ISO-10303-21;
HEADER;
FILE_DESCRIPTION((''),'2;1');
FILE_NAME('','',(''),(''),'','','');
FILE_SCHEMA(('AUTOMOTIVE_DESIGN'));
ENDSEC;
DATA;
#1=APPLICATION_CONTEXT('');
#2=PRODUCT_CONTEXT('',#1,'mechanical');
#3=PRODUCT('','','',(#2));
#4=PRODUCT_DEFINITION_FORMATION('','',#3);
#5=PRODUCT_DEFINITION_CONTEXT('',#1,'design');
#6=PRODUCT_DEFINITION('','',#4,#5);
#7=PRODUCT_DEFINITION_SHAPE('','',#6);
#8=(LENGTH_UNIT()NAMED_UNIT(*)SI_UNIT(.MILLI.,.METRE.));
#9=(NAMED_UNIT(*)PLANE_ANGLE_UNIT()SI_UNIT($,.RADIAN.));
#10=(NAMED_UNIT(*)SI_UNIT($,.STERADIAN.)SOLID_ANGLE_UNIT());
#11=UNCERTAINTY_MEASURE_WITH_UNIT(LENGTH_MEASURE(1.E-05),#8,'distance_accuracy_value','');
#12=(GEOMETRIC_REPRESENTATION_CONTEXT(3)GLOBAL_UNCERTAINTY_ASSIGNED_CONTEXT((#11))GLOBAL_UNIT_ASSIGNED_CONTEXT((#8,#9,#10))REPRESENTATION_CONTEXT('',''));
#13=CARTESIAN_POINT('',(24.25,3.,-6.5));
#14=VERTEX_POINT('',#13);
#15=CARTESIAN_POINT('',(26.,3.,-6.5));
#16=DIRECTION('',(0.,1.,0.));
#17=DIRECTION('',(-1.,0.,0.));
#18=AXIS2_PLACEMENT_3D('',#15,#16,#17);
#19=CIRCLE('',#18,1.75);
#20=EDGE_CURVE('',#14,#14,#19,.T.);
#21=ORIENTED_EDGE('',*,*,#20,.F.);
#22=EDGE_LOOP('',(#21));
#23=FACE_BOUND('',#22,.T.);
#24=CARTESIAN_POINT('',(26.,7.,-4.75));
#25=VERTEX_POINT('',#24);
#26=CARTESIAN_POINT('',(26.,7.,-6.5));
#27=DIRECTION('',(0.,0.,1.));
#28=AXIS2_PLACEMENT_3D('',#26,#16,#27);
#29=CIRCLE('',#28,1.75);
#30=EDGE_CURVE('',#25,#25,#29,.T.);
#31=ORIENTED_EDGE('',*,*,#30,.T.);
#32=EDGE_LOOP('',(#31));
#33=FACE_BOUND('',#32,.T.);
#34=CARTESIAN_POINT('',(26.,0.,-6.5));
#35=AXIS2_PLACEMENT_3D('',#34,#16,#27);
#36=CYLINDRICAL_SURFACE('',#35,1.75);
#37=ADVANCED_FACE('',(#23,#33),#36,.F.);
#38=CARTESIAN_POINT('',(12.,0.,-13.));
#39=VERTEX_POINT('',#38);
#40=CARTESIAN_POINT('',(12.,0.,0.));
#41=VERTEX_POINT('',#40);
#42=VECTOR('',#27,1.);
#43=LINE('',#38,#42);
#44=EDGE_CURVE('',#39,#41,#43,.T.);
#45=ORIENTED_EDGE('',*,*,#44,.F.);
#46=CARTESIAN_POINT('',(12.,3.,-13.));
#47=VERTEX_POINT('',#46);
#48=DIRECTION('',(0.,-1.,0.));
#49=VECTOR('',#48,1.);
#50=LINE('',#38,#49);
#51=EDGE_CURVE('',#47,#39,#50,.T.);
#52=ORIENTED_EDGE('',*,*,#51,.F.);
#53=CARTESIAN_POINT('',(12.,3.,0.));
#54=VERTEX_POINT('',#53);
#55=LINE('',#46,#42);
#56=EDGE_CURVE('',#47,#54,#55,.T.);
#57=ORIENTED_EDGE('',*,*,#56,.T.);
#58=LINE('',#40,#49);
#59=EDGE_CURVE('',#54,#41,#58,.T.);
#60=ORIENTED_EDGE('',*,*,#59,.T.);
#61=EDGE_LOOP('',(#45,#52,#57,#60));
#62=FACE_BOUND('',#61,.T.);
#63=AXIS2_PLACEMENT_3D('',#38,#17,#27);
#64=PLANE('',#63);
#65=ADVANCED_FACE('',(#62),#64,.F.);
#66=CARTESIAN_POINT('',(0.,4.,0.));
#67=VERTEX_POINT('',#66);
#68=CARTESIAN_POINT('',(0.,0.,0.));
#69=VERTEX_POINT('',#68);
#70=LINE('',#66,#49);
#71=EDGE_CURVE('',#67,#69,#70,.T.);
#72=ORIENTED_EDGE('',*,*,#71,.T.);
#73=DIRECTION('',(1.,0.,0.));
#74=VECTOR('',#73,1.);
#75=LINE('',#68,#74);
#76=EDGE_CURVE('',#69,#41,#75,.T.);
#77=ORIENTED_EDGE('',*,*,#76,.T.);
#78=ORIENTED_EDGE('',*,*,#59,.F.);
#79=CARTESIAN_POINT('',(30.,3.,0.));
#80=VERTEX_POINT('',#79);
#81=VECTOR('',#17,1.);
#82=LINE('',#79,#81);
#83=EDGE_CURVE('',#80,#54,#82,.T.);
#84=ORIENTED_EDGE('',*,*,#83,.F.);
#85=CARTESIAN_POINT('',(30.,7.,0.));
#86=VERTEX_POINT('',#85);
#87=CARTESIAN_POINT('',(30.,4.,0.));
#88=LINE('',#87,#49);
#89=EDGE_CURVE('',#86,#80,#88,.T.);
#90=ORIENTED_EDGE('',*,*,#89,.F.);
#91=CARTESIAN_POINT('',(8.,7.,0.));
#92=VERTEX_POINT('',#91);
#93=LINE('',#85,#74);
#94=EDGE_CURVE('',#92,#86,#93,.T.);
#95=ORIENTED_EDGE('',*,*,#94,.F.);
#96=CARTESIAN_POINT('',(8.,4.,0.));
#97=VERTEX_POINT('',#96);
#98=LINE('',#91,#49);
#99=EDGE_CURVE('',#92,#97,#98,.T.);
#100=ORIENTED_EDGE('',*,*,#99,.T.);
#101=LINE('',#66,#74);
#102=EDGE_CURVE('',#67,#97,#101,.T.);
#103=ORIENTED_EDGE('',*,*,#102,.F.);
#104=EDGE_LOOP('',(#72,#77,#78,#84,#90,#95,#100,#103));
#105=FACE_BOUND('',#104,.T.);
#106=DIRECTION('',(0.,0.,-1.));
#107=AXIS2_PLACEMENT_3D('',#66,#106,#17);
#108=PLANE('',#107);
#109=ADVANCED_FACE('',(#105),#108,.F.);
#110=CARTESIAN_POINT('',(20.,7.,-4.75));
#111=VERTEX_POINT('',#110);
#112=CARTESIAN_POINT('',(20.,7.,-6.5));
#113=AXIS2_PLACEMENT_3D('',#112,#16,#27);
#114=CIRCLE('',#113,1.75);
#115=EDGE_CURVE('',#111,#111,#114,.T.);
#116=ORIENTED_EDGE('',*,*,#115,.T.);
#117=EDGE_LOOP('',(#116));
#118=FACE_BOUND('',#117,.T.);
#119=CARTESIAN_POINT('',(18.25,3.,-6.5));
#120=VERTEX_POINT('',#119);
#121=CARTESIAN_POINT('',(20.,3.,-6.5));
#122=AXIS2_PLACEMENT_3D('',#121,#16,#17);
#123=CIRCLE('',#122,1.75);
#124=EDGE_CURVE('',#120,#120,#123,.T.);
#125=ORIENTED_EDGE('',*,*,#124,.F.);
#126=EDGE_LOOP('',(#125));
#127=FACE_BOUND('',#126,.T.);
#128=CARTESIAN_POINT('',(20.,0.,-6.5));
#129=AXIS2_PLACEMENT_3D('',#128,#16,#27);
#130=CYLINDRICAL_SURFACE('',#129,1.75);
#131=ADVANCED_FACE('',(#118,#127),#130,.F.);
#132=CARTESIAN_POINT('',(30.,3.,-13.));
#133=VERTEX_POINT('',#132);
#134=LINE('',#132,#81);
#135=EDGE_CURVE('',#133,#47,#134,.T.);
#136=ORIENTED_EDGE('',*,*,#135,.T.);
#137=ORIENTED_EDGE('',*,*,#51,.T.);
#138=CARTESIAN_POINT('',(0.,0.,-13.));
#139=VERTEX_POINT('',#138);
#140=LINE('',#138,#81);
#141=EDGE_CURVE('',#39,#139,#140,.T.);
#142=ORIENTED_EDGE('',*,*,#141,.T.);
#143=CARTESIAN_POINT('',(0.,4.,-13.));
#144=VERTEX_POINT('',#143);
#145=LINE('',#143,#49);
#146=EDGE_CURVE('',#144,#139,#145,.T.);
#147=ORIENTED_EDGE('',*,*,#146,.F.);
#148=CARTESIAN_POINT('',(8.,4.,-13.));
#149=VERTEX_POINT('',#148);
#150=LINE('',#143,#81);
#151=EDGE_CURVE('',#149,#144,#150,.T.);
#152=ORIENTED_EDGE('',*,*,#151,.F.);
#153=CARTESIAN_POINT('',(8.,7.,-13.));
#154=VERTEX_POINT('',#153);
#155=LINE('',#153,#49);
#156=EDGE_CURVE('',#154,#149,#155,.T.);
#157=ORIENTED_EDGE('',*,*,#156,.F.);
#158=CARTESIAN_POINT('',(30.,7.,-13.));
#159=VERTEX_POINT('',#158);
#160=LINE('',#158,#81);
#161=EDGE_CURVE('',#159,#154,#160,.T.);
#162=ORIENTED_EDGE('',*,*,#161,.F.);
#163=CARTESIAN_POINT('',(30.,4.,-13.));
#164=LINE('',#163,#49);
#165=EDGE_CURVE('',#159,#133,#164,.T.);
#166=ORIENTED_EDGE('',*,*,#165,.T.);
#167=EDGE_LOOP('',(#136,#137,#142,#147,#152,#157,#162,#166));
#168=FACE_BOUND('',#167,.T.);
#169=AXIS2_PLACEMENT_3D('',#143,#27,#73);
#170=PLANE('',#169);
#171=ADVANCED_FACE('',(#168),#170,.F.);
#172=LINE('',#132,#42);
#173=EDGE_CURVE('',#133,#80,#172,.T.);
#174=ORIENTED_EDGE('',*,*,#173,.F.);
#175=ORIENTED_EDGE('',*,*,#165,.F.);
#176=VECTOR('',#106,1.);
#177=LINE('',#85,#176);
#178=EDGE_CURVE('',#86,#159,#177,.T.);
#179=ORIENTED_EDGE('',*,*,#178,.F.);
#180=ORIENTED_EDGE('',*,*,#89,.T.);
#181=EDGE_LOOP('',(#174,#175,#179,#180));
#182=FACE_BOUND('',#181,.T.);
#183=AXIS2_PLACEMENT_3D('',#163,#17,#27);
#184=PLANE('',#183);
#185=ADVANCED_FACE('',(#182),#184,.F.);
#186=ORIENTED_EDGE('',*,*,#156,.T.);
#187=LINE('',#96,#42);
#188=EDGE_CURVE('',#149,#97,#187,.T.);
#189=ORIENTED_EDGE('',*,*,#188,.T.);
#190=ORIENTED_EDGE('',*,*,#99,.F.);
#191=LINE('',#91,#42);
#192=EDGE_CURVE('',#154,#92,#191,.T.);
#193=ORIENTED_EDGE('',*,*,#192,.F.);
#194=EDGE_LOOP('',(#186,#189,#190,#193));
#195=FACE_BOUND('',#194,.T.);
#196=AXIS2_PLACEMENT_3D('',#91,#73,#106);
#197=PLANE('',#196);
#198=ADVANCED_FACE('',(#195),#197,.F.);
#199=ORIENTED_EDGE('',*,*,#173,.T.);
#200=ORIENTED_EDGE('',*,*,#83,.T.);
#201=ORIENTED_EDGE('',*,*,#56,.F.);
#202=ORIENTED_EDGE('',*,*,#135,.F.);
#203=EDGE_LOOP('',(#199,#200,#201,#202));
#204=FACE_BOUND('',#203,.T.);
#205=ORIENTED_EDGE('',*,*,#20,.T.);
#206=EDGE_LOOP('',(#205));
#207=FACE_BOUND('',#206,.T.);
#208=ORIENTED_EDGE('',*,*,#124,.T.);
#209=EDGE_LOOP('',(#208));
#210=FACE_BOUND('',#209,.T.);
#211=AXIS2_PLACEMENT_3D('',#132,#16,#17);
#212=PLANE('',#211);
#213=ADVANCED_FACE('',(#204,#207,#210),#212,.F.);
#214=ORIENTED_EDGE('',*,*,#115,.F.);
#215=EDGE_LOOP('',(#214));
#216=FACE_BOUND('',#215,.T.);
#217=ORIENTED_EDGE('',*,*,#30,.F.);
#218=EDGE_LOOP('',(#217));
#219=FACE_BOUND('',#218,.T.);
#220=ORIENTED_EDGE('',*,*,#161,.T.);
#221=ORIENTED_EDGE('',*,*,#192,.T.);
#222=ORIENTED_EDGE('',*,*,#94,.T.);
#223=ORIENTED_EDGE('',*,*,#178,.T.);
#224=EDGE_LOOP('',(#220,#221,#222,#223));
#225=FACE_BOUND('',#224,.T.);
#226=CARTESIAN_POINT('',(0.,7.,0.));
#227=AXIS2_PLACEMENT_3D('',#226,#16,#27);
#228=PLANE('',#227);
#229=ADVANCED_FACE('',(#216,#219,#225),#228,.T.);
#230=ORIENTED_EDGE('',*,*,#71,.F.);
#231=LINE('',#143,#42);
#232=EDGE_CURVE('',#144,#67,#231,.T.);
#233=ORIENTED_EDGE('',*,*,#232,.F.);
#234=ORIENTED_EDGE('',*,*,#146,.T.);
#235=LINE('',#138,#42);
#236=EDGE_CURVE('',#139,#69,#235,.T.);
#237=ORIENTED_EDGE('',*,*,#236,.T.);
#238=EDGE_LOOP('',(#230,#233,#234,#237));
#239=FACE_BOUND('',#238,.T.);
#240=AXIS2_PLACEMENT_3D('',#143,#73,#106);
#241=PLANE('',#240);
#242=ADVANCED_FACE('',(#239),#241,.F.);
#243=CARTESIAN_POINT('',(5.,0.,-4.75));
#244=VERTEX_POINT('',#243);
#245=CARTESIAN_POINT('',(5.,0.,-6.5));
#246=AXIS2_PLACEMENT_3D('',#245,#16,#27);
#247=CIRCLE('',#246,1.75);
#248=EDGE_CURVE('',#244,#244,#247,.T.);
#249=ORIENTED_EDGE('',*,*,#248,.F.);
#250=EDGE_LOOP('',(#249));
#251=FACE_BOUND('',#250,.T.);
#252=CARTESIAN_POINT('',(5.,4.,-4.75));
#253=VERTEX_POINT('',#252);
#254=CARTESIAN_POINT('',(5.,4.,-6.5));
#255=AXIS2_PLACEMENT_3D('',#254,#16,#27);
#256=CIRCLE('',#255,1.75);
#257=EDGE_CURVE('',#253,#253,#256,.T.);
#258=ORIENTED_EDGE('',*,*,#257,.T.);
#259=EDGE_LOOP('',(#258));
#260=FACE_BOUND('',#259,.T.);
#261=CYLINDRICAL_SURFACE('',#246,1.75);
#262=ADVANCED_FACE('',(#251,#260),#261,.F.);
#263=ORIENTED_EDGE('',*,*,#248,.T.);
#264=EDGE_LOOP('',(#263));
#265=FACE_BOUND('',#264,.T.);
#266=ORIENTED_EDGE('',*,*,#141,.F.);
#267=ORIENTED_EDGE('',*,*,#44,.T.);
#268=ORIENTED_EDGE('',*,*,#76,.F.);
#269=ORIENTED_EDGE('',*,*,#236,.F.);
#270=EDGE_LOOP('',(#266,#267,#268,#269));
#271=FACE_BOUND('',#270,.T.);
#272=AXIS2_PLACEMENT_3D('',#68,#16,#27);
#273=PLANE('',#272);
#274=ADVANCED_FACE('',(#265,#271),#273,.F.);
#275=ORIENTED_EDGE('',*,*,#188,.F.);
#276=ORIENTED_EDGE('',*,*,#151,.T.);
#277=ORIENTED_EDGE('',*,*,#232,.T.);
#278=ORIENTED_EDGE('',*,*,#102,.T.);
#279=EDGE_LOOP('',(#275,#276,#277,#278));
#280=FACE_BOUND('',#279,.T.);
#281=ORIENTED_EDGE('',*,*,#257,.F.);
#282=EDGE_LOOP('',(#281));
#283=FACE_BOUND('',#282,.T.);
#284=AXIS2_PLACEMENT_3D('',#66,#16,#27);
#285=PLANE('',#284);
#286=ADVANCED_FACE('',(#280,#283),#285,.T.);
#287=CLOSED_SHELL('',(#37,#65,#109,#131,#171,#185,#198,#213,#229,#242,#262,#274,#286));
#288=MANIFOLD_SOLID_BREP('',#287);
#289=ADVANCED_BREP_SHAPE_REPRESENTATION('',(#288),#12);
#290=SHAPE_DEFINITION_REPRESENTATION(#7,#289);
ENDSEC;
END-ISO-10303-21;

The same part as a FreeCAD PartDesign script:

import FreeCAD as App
import Part
import Sketcher
from FreeCAD import Vector


def add_polygon(sketch, points):
    """Adds a closed chain of lines whose ends are joined by coincident constraints."""
    first, n = sketch.GeometryCount, len(points)
    for a, b in zip(points, points[1:] + points[:1]):
        sketch.addGeometry(Part.LineSegment(App.Vector(*a, 0), App.Vector(*b, 0)), False)
    for i in range(n):
        sketch.addConstraint(Sketcher.Constraint("Coincident", first + i, 2, first + (i + 1) % n, 1))

doc = App.newDocument("Part")
body = doc.addObject("PartDesign::Body", "Body")

# Sketch on XZ plane
sketch1 = body.newObject("Sketcher::SketchObject", "Sketch")
sketch1.AttachmentSupport = (doc.getObject("XZ_Plane"), [""])
sketch1.MapMode = "FlatFace"
add_polygon(sketch1, [(0, -13), (0, 0), (30, 0), (30, -13)])  # lines 0-3
sketch1.addConstraint([
    Sketcher.Constraint("Vertical", 0),
    Sketcher.Constraint("Horizontal", 1),
    Sketcher.Constraint("Vertical", 2),
    Sketcher.Constraint("Horizontal", 3),
    Sketcher.Constraint("Coincident", 0, 2, -1, 1),
    Sketcher.Constraint("DistanceX", 1, 1, 1, 2, 30.0),
    Sketcher.Constraint("DistanceY", 0, 1, 0, 2, 13.0),
])
pad1 = body.newObject("PartDesign::Pad", "Pad")
pad1.Profile = sketch1
pad1.Length = 4
pad1.Reversed = True

# Sketch on XY plane
sketch2 = body.newObject("Sketcher::SketchObject", "Sketch001")
sketch2.AttachmentSupport = (doc.getObject("XY_Plane"), [""])
sketch2.MapMode = "FlatFace"
add_polygon(sketch2, [(12, 3), (12, 0), (30, 0), (30, 3)])  # lines 0-3
sketch2.addConstraint([
    Sketcher.Constraint("Vertical", 0),
    Sketcher.Constraint("Horizontal", 1),
    Sketcher.Constraint("Vertical", 2),
    Sketcher.Constraint("Horizontal", 3),
    Sketcher.Constraint("PointOnObject", 0, 2, -1),
    Sketcher.Constraint("DistanceX", 1, 1, 1, 2, 18.0),
    Sketcher.Constraint("DistanceY", 0, 2, 0, 1, 3.0),
    Sketcher.Constraint("DistanceX", -1, 1, 0, 2, 12.0),
])
pocket1 = body.newObject("PartDesign::Pocket", "Pocket")
pocket1.Profile = sketch2
pocket1.Type = "ThroughAll"

# Sketch on XZ plane
sketch3 = body.newObject("Sketcher::SketchObject", "Sketch002")
sketch3.AttachmentSupport = (doc.getObject("XZ_Plane"), [""])
sketch3.MapMode = "FlatFace"
sketch3.AttachmentOffset = App.Placement(Vector(0, 0, -4), App.Rotation())
add_polygon(sketch3, [(8, -13), (8, 0), (30, 0), (30, -13)])  # lines 0-3
sketch3.addConstraint([
    Sketcher.Constraint("Vertical", 0),
    Sketcher.Constraint("Horizontal", 1),
    Sketcher.Constraint("Vertical", 2),
    Sketcher.Constraint("Horizontal", 3),
    Sketcher.Constraint("PointOnObject", 0, 2, -1),
    Sketcher.Constraint("DistanceX", 1, 1, 1, 2, 22.0),
    Sketcher.Constraint("DistanceY", 0, 1, 0, 2, 13.0),
    Sketcher.Constraint("DistanceX", -1, 1, 0, 2, 8.0),
])
pad2 = body.newObject("PartDesign::Pad", "Pad001")
pad2.Profile = sketch3
pad2.Length = 3
pad2.Reversed = True

# Sketch on XZ plane
sketch4 = body.newObject("Sketcher::SketchObject", "Sketch003")
sketch4.AttachmentSupport = (doc.getObject("XZ_Plane"), [""])
sketch4.MapMode = "FlatFace"
sketch4.AttachmentOffset = App.Placement(Vector(0, 0, -4), App.Rotation())
sketch4.addGeometry(Part.Circle(Vector(5, -6.5, 0), Vector(0, 0, 1), 1.8), False)
sketch4.addConstraint([
    Sketcher.Constraint("Diameter", 0, 3.5),
    Sketcher.Constraint("DistanceX", -1, 1, 0, 3, 5.0),
    Sketcher.Constraint("DistanceY", 0, 3, -1, 1, 6.5),
])
pocket2 = body.newObject("PartDesign::Pocket", "Pocket001")
pocket2.Profile = sketch4
pocket2.Type = "ThroughAll"
pocket2.Reversed = True

# Sketch on XZ plane
sketch5 = body.newObject("Sketcher::SketchObject", "Sketch004")
sketch5.AttachmentSupport = (doc.getObject("XZ_Plane"), [""])
sketch5.MapMode = "FlatFace"
sketch5.AttachmentOffset = App.Placement(Vector(0, 0, -7), App.Rotation())
sketch5.addGeometry([
    Part.Circle(Vector(20, -6.5, 0), Vector(0, 0, 1), 1.8),
    Part.Circle(Vector(26, -6.5, 0), Vector(0, 0, 1), 1.8),
], False)
sketch5.addConstraint([
    Sketcher.Constraint("Equal", 0, 1),
    Sketcher.Constraint("Horizontal", 0, 3, 1, 3),
    Sketcher.Constraint("Diameter", 0, 3.5),
    Sketcher.Constraint("DistanceX", -1, 1, 0, 3, 20.0),
    Sketcher.Constraint("DistanceX", -1, 1, 1, 3, 26.0),
    Sketcher.Constraint("DistanceY", 0, 3, -1, 1, 6.5),
])
pocket3 = body.newObject("PartDesign::Pocket", "Pocket002")
pocket3.Profile = sketch5
pocket3.Type = "ThroughAll"
pocket3.Reversed = True

doc.recompute()
